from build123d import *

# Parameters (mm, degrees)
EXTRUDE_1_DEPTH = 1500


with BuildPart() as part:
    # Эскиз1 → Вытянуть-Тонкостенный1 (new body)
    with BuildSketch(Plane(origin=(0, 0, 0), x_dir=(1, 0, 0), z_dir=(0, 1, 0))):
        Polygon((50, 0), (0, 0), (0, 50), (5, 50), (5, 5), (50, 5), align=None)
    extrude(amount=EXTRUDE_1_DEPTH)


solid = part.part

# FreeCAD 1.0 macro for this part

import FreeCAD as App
import Part
import Sketcher


def add_polygon(sketch, points):
    """Adds a closed chain of lines whose ends are joined by coincident constraints."""
    first, n = sketch.GeometryCount, len(points)
    for a, b in zip(points, points[1:] + points[:1]):
        sketch.addGeometry(Part.LineSegment(App.Vector(*a, 0), App.Vector(*b, 0)), False)
    for i in range(n):
        sketch.addConstraint(Sketcher.Constraint("Coincident", first + i, 2, first + (i + 1) % n, 1))

doc = App.newDocument("Part")
params = doc.addObject("Spreadsheet::Sheet", "Params")
for row, (alias, value) in enumerate([
    ("sketch1_width", "50 mm"),
    ("sketch1_width2", "45 mm"),
    ("pad1_length", "1500 mm"),
], start=1):
    params.set(f"A{row}", alias)
    params.set(f"B{row}", "=" + value)
    params.setAlias(f"B{row}", alias)

body = doc.addObject("PartDesign::Body", "Body")

# Sketch on XZ plane
sketch1 = body.newObject("Sketcher::SketchObject", "Sketch")
sketch1.AttachmentSupport = (doc.getObject("XZ_Plane"), [""])
sketch1.MapMode = "FlatFace"
add_polygon(sketch1, [(0, 0), (50, 0), (50, -5), (5, -5), (5, -50), (0, -50)])  # lines 0-5
sketch1.addConstraint([
    Sketcher.Constraint("Horizontal", 0),
    Sketcher.Constraint("Vertical", 1),
    Sketcher.Constraint("Horizontal", 2),
    Sketcher.Constraint("Vertical", 3),
    Sketcher.Constraint("Horizontal", 4),
    Sketcher.Constraint("Vertical", 5),
    Sketcher.Constraint("Coincident", 5, 2, -1, 1),
    Sketcher.Constraint("Equal", 4, 1),
    Sketcher.Constraint("Equal", 2, 3),
    Sketcher.Constraint("DistanceX", 0, 1, 0, 2, 50.0),
    Sketcher.Constraint("DistanceX", 2, 2, 2, 1, 45.0),
])
sketch1.setExpression("Constraints[15]", "Params.sketch1_width")
sketch1.setExpression("Constraints[16]", "Params.sketch1_width2")
pad1 = body.newObject("PartDesign::Pad", "Pad")
pad1.Profile = sketch1
pad1.setExpression("Length", "Params.pad1_length")
pad1.Reversed = True

doc.recompute()
